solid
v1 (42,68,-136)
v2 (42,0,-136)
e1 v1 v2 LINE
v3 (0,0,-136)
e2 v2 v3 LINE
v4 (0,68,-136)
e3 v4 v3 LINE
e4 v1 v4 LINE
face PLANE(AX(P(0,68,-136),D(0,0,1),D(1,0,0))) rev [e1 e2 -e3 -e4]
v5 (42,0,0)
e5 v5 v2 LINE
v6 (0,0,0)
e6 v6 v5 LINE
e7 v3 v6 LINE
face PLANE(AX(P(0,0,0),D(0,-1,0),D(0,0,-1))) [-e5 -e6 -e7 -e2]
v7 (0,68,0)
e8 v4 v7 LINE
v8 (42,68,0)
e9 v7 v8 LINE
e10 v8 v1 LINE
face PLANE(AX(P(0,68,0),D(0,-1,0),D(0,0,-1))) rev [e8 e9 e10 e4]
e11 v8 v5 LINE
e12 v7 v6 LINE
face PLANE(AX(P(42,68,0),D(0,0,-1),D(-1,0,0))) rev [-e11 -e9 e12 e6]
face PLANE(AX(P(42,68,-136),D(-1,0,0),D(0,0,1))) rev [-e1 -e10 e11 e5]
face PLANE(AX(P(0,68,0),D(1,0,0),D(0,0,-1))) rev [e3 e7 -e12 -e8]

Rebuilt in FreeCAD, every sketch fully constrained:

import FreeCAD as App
import Part
import Sketcher
Q = App.Units.Quantity


def add_polygon(sketch, points):
    """Adds a closed chain of lines whose ends are joined by coincident constraints."""
    first, n = sketch.GeometryCount, len(points)
    for a, b in zip(points, points[1:] + points[:1]):
        sketch.addGeometry(Part.LineSegment(App.Vector(*a, 0), App.Vector(*b, 0)), False)
    for i in range(n):
        sketch.addConstraint(Sketcher.Constraint("Coincident", first + i, 2, first + (i + 1) % n, 1))

doc = App.newDocument("Part")
body = doc.addObject("PartDesign::Body", "Body")

sketch1 = body.newObject("Sketcher::SketchObject", "Sketch")
sketch1.AttachmentSupport = (doc.getObject("XZ_Plane"), [""])
sketch1.MapMode = "FlatFace"
add_polygon(sketch1, [(0, -136), (0, 0), (42, 0), (42, -136)])
sketch1.addConstraint([
    Sketcher.Constraint("Vertical", 0),
    Sketcher.Constraint("Horizontal", 1),
    Sketcher.Constraint("Vertical", 2),
    Sketcher.Constraint("Horizontal", 3),
    Sketcher.Constraint("Coincident", 0, 2, -1, 1),
    Sketcher.Constraint("DistanceX", 1, 1, 1, 2, Q("42 mm")),
    Sketcher.Constraint("DistanceY", 0, 1, 0, 2, Q("136 mm")),
])
pad1 = body.newObject("PartDesign::Pad", "Pad")
pad1.Profile = sketch1
pad1.Length = 68
pad1.Reversed = True

doc.recompute()
